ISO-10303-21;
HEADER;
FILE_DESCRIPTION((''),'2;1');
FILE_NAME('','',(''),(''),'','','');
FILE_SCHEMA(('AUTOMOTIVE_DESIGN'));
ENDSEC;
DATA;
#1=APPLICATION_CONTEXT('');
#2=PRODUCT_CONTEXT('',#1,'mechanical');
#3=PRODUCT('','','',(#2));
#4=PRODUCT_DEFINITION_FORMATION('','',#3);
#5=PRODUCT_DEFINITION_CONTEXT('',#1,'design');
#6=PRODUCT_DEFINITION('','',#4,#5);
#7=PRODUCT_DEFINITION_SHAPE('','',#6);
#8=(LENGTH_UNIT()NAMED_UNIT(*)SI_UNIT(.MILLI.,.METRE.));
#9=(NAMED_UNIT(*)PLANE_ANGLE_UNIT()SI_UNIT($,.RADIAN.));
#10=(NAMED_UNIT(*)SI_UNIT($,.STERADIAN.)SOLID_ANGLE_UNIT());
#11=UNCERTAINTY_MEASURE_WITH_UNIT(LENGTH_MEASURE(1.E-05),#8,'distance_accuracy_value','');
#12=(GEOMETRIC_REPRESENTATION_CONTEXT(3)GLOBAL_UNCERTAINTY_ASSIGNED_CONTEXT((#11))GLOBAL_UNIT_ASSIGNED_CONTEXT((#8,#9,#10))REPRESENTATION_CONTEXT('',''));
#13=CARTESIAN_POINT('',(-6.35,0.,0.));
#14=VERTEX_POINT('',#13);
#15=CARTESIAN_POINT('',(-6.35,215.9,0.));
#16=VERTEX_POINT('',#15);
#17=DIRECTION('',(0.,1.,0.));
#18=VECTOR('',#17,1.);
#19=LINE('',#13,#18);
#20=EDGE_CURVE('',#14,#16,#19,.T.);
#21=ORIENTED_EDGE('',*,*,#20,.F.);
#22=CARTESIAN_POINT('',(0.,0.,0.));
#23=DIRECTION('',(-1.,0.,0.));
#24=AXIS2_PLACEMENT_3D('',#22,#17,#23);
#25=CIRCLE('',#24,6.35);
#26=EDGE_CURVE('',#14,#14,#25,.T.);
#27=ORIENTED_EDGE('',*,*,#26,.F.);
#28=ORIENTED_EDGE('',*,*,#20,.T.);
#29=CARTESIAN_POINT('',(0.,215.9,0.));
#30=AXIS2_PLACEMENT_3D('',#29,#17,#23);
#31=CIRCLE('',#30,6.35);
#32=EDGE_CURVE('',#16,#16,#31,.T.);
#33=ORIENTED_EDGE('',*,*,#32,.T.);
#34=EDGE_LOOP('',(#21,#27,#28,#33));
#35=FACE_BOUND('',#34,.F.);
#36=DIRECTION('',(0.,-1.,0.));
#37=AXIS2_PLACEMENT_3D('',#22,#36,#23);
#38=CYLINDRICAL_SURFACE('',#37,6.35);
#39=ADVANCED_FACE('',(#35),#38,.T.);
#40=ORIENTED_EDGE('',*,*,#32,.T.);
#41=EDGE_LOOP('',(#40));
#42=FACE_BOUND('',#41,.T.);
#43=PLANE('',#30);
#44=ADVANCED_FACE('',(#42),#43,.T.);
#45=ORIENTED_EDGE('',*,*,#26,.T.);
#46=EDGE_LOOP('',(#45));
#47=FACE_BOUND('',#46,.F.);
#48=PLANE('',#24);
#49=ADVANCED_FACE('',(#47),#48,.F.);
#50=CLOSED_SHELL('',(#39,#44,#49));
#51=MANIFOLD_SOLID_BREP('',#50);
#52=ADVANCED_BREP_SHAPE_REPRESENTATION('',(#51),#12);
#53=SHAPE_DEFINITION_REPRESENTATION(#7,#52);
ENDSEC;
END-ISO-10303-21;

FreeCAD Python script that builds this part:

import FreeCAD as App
import Part
import Sketcher
Q = App.Units.Quantity

doc = App.newDocument("Part")
body = doc.addObject("PartDesign::Body", "Body")

sketch1 = body.newObject("Sketcher::SketchObject", "Sketch")
sketch1.AttachmentSupport = (doc.getObject("XZ_Plane"), [""])
sketch1.MapMode = "FlatFace"
sketch1.addGeometry(Part.Circle(App.Vector(0, 0, 0), App.Vector(0, 0, 1), 6.35), False)
sketch1.addConstraint([
    Sketcher.Constraint("Coincident", 0, 3, -1, 1),
    Sketcher.Constraint("Diameter", 0, Q("0.5 in")),
])
pad1 = body.newObject("PartDesign::Pad", "Pad")
pad1.Profile = sketch1
pad1.Length = Q("8.5 in")
pad1.Reversed = True

doc.recompute()
